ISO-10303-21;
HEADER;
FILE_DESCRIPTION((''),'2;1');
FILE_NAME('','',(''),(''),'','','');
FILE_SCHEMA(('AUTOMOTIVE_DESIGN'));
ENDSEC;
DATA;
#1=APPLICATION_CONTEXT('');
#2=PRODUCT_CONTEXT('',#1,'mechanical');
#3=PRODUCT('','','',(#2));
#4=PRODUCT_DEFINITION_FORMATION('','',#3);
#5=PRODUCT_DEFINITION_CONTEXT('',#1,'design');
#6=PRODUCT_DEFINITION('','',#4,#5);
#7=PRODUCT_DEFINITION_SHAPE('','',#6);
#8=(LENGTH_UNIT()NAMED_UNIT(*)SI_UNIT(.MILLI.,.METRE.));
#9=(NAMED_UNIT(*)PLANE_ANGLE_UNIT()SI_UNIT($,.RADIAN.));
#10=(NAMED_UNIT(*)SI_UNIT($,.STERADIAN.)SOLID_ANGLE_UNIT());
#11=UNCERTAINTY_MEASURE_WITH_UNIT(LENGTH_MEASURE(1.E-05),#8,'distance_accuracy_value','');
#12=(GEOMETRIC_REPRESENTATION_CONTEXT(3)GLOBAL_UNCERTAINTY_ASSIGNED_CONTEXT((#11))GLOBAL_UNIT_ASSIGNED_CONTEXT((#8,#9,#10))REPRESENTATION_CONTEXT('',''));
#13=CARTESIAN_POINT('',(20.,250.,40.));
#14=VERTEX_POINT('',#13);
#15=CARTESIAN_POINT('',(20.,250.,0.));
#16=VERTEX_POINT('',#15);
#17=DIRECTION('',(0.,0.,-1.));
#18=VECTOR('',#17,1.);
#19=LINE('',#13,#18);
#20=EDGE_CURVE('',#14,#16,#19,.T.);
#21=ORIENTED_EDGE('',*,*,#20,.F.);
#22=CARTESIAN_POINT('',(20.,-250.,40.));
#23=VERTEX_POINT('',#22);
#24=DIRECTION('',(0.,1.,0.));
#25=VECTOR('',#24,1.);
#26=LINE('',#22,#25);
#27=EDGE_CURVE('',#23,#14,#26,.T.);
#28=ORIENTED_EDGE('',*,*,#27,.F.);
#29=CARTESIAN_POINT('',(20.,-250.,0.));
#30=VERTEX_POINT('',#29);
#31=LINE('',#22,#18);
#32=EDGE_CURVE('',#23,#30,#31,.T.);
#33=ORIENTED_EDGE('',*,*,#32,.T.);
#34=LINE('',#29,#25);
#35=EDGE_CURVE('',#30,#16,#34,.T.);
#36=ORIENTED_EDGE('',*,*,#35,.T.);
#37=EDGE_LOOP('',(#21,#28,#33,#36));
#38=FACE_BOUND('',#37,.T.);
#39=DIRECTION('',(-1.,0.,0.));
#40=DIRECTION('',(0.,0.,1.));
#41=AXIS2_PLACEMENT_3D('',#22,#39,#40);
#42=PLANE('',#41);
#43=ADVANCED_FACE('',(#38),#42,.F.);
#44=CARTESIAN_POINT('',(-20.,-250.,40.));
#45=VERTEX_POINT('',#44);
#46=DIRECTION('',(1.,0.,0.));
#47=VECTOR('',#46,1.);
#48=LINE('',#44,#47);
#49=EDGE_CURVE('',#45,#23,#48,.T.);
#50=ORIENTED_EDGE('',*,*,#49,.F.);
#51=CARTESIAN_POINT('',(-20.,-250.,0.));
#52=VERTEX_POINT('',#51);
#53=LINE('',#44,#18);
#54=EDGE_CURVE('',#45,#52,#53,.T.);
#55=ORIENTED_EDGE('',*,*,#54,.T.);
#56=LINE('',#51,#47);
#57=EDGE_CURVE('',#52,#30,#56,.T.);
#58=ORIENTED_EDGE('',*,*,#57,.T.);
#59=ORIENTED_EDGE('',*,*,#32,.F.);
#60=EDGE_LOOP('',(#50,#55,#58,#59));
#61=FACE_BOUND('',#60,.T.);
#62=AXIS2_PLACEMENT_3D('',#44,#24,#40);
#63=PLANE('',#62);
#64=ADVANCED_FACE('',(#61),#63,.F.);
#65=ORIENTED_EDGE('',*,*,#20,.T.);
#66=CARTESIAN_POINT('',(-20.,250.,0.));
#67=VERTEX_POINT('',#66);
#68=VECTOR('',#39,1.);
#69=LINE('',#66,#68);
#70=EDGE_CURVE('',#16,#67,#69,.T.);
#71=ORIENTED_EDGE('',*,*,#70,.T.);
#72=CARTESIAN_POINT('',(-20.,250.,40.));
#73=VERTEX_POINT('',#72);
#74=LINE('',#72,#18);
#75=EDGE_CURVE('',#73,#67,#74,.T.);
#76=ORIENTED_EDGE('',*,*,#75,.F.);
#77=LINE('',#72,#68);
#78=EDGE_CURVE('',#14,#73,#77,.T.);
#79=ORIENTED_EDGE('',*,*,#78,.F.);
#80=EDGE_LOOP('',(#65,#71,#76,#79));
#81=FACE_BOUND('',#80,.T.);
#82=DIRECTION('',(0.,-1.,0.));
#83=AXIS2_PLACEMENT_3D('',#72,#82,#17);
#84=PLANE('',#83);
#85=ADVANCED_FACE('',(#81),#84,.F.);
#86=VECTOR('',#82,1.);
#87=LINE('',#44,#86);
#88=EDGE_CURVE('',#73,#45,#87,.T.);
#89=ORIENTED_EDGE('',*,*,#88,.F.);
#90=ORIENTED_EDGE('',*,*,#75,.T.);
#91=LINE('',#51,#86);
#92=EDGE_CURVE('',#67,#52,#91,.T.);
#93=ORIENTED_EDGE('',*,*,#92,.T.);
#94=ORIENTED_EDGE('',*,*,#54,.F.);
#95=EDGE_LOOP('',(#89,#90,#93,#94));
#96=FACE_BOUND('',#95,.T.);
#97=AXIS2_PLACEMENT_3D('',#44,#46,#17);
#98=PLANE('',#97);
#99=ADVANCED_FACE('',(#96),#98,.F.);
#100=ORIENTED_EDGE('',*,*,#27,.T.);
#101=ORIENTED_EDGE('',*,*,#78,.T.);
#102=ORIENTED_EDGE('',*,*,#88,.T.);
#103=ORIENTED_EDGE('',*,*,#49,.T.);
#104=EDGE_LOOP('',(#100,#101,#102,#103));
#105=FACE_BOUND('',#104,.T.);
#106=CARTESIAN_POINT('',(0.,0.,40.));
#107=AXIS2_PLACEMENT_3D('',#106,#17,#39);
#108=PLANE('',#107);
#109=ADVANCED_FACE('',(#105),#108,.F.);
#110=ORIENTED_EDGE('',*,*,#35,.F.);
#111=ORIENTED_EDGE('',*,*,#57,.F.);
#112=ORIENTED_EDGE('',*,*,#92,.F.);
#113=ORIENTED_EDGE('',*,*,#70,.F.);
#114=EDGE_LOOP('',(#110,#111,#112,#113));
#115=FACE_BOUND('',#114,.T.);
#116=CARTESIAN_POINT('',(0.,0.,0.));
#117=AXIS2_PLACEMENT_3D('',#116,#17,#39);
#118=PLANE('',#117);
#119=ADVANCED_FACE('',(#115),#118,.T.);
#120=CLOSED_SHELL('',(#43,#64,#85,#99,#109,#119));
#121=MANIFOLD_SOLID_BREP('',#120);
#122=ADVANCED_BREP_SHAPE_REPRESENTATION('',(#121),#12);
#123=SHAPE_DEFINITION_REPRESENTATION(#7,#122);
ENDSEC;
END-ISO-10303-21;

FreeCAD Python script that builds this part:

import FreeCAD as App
import Part
import Sketcher
from FreeCAD import Vector

doc = App.newDocument("Part")
params = doc.addObject("Spreadsheet::Sheet", "Params")
for row, (alias, value) in enumerate([
    ("sketch1_width", "40 mm"),
    ("sketch1_height", "500 mm"),
    ("pad1_length", "40 mm"),
], start=1):
    params.set(f"A{row}", alias)
    params.set(f"B{row}", "=" + value)
    params.setAlias(f"B{row}", alias)

body = doc.addObject("PartDesign::Body", "Body")

# Sketch on XY plane
sketch1 = body.newObject("Sketcher::SketchObject", "Sketch")
sketch1.AttachmentSupport = (doc.getObject("XY_Plane"), [""])
sketch1.MapMode = "FlatFace"
sketch1.addGeometry([
    Part.LineSegment(Vector(-20, 250, 0), Vector(-20, -250, 0)),
    Part.LineSegment(Vector(-20, -250, 0), Vector(20, -250, 0)),
    Part.LineSegment(Vector(20, -250, 0), Vector(20, 250, 0)),
    Part.LineSegment(Vector(20, 250, 0), Vector(-20, 250, 0)),
], False)
sketch1.addConstraint([
    Sketcher.Constraint("Coincident", 0, 2, 1, 1),
    Sketcher.Constraint("Coincident", 1, 2, 2, 1),
    Sketcher.Constraint("Coincident", 2, 2, 3, 1),
    Sketcher.Constraint("Coincident", 3, 2, 0, 1),
    Sketcher.Constraint("Vertical", 0),
    Sketcher.Constraint("Horizontal", 1),
    Sketcher.Constraint("Vertical", 2),
    Sketcher.Constraint("Horizontal", 3),
    Sketcher.Constraint("Symmetric", 0, 2, 2, 2, -1, 1),
    Sketcher.Constraint("DistanceX", 1, 1, 1, 2, 40.0),
    Sketcher.Constraint("DistanceY", 0, 2, 0, 1, 500.0),
])
sketch1.setExpression("Constraints[9]", "Params.sketch1_width")
sketch1.setExpression("Constraints[10]", "Params.sketch1_height")
pad1 = body.newObject("PartDesign::Pad", "Pad")
pad1.Profile = sketch1
pad1.setExpression("Length", "Params.pad1_length")

doc.recompute()
